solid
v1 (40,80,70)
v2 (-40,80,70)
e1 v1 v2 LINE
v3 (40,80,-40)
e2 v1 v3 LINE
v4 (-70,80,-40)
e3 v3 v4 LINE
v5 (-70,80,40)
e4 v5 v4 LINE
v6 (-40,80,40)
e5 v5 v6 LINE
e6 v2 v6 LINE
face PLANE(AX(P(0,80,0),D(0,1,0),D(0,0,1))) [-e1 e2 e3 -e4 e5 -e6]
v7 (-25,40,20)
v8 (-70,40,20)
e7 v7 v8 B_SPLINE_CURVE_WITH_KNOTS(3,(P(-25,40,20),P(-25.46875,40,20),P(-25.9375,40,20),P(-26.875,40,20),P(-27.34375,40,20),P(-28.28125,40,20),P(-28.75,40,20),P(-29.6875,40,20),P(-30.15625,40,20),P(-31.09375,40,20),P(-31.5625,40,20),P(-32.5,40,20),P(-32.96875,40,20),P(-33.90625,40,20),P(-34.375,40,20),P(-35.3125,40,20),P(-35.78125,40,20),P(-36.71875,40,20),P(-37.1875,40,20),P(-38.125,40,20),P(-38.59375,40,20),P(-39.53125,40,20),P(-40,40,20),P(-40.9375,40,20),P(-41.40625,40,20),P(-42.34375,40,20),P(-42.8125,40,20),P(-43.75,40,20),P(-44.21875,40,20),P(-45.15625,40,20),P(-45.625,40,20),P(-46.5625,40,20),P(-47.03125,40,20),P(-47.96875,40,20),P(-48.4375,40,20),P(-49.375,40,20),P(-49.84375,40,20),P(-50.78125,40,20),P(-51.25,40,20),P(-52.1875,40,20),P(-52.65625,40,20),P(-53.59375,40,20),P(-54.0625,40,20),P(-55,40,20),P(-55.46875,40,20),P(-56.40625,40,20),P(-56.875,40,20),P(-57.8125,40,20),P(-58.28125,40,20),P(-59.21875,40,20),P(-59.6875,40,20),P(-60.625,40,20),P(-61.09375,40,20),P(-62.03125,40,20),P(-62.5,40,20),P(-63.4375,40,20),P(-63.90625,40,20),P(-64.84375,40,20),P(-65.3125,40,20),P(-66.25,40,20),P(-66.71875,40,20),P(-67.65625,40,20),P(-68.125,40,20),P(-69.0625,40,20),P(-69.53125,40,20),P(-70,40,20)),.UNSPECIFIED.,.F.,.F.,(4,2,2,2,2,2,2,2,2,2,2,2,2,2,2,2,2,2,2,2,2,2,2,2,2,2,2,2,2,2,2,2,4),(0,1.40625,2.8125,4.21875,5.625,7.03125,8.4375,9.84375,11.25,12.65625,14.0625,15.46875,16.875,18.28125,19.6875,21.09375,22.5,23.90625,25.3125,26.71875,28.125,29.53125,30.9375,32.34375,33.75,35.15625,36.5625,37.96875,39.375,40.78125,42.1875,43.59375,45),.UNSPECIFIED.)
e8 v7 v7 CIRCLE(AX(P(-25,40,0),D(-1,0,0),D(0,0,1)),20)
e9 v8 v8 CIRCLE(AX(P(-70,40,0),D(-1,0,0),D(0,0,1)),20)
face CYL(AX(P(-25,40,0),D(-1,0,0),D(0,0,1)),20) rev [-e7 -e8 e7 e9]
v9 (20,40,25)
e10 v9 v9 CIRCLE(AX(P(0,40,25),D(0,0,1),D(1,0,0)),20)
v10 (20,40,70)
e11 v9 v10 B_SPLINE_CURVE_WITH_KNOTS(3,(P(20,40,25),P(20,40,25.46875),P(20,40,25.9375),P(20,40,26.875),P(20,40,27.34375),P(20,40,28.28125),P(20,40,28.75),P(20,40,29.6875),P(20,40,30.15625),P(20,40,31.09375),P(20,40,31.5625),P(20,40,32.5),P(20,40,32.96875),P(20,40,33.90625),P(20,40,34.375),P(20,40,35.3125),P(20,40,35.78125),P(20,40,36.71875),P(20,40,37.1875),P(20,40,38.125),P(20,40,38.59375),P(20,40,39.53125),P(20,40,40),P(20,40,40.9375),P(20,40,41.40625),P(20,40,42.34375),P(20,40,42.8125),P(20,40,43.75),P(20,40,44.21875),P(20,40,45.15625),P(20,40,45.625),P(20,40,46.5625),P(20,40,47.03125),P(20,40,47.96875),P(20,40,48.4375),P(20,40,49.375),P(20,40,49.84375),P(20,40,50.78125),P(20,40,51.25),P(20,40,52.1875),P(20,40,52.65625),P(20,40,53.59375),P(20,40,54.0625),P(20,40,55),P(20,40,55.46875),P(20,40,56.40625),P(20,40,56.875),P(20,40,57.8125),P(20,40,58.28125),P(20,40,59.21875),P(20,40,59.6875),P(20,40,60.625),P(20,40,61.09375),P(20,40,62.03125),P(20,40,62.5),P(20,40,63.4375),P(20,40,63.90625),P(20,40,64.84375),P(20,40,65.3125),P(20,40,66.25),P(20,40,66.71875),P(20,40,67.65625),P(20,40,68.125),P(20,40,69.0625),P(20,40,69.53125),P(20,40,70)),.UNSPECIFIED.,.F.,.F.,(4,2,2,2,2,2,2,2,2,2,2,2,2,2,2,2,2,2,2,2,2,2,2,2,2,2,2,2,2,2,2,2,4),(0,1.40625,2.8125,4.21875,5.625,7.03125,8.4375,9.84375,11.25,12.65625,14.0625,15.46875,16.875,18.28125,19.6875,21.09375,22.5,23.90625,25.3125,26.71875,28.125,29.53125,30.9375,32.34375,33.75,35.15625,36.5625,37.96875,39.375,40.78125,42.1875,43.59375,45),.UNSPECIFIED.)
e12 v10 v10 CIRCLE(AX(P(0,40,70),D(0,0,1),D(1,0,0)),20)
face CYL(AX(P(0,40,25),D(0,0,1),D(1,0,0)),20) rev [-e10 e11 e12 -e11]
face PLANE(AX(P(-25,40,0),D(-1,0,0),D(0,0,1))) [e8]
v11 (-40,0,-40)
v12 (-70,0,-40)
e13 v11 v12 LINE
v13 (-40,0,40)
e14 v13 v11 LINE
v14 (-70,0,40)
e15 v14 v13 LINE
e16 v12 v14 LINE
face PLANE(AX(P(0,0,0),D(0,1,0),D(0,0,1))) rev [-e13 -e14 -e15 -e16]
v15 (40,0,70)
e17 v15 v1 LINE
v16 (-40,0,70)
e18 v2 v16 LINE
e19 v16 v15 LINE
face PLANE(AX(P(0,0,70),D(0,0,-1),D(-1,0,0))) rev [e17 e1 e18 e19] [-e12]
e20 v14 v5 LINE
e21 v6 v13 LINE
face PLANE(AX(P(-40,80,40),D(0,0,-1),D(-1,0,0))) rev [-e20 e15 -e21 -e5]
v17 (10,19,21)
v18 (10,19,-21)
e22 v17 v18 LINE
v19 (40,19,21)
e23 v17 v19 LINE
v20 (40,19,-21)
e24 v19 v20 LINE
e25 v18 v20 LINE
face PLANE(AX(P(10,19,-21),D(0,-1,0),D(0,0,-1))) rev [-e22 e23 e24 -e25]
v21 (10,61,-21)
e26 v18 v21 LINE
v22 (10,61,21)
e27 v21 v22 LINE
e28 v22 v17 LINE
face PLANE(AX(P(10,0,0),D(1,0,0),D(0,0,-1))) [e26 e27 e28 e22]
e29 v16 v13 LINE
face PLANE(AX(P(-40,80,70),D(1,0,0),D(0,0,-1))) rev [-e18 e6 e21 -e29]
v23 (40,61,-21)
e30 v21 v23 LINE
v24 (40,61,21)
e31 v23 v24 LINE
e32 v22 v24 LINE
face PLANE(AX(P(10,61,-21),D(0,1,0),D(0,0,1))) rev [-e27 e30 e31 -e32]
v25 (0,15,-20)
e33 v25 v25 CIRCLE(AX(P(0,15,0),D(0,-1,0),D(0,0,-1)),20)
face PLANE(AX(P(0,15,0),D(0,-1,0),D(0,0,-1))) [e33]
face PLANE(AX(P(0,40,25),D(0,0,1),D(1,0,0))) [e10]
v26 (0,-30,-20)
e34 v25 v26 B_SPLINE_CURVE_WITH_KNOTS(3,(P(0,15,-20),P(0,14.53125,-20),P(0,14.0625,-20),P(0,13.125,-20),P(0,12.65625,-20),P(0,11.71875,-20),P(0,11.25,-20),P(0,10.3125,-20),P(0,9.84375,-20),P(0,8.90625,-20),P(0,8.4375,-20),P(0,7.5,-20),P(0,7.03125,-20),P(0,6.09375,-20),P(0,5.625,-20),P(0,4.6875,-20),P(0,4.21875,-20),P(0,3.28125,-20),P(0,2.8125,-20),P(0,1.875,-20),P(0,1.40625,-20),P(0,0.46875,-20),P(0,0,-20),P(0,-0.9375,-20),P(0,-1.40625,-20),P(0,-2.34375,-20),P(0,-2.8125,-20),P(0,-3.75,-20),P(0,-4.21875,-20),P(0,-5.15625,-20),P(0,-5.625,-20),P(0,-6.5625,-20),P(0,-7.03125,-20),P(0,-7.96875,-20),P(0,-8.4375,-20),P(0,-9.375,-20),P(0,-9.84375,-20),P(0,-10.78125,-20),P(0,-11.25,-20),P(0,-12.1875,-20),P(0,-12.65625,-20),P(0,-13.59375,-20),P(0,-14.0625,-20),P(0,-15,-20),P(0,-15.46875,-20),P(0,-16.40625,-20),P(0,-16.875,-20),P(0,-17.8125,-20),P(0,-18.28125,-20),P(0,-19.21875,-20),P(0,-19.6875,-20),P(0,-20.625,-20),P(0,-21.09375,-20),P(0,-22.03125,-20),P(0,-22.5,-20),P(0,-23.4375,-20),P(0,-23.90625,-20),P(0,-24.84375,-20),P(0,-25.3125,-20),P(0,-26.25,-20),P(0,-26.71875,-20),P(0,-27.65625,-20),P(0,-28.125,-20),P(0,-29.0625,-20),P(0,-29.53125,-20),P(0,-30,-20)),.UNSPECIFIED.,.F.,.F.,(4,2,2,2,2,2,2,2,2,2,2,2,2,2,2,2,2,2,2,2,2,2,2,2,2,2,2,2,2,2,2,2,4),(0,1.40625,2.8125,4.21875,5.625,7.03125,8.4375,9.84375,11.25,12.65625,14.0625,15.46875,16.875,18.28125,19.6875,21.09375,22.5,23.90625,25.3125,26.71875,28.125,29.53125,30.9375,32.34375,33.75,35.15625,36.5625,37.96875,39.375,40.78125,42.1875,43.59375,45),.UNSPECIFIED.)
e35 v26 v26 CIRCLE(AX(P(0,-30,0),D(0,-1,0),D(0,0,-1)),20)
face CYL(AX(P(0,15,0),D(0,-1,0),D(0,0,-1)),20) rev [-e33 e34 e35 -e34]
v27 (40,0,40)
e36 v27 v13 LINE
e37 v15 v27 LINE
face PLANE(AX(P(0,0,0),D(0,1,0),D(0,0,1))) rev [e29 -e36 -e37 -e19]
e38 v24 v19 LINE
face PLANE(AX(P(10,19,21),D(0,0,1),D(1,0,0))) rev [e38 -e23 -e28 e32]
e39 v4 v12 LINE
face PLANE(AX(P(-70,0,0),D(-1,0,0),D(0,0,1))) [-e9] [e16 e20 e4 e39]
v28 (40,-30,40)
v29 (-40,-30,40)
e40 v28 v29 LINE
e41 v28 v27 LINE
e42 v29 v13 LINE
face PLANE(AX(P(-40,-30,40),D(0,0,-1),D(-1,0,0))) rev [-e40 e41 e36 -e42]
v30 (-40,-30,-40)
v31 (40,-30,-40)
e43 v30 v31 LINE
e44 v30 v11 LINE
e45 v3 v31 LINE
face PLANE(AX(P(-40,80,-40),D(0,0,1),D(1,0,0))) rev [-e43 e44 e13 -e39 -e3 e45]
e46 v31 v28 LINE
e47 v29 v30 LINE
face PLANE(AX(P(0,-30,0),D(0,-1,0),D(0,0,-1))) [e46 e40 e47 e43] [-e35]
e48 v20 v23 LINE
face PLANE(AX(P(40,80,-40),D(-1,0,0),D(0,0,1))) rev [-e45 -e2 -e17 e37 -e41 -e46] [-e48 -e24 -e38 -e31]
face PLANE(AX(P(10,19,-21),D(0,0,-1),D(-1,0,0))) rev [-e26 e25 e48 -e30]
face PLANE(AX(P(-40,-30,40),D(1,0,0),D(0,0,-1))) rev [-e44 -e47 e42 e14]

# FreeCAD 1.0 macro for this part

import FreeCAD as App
import Part
import Sketcher
from FreeCAD import Vector

doc = App.newDocument("Part")
body = doc.addObject("PartDesign::Body", "Body")

sketch1 = body.newObject("Sketcher::SketchObject", "Sketch")
sketch1.AttachmentSupport = (doc.getObject("XZ_Plane"), [""])
sketch1.MapMode = "FlatFace"
sketch1.addGeometry(Part.LineSegment(Vector(-40, -40, 0), Vector(-40, 40, 0)), False)
sketch1.addGeometry(Part.LineSegment(Vector(-40, 40, 0), Vector(40, 40, 0)), False)
sketch1.addGeometry(Part.LineSegment(Vector(40, 40, 0), Vector(40, -40, 0)), False)
sketch1.addGeometry(Part.LineSegment(Vector(40, -40, 0), Vector(-40, -40, 0)), False)
sketch1.addConstraint(Sketcher.Constraint("Coincident", 0, 2, 1, 1))
sketch1.addConstraint(Sketcher.Constraint("Coincident", 1, 2, 2, 1))
sketch1.addConstraint(Sketcher.Constraint("Coincident", 2, 2, 3, 1))
sketch1.addConstraint(Sketcher.Constraint("Coincident", 3, 2, 0, 1))
sketch1.addConstraint(Sketcher.Constraint("Vertical", 0))
sketch1.addConstraint(Sketcher.Constraint("Horizontal", 1))
sketch1.addConstraint(Sketcher.Constraint("Vertical", 2))
sketch1.addConstraint(Sketcher.Constraint("Horizontal", 3))
sketch1.addConstraint(Sketcher.Constraint("Symmetric", 0, 2, 2, 2, -1, 1))
sketch1.addConstraint(Sketcher.Constraint("Equal", 3, 0))
sketch1.addConstraint(Sketcher.Constraint("DistanceX", 1, 1, 1, 2, 80.0))
pad1 = body.newObject("PartDesign::Pad", "Pad")
pad1.Profile = sketch1
pad1.Length = 80
pad1.Reversed = True

sketch2 = body.newObject("Sketcher::SketchObject", "Sketch001")
sketch2.AttachmentSupport = (doc.getObject("YZ_Plane"), [""])
sketch2.MapMode = "FlatFace"
sketch2.AttachmentOffset = App.Placement(Vector(0, 0, -40), App.Rotation())
sketch2.addGeometry(Part.LineSegment(Vector(80, -40, 0), Vector(0, -40, 0)), False)
sketch2.addGeometry(Part.LineSegment(Vector(0, -40, 0), Vector(0, 40, 0)), False)
sketch2.addGeometry(Part.LineSegment(Vector(0, 40, 0), Vector(80, 40, 0)), False)
sketch2.addGeometry(Part.LineSegment(Vector(80, 40, 0), Vector(80, -40, 0)), False)
sketch2.addConstraint(Sketcher.Constraint("Coincident", 0, 2, 1, 1))
sketch2.addConstraint(Sketcher.Constraint("Coincident", 1, 2, 2, 1))
sketch2.addConstraint(Sketcher.Constraint("Coincident", 2, 2, 3, 1))
sketch2.addConstraint(Sketcher.Constraint("Coincident", 3, 2, 0, 1))
sketch2.addConstraint(Sketcher.Constraint("Horizontal", 0))
sketch2.addConstraint(Sketcher.Constraint("Vertical", 1))
sketch2.addConstraint(Sketcher.Constraint("Horizontal", 2))
sketch2.addConstraint(Sketcher.Constraint("Vertical", 3))
sketch2.addConstraint(Sketcher.Constraint("Symmetric", 0, 2, 1, 2, -1, 1))
sketch2.addConstraint(Sketcher.Constraint("Equal", 2, 1))
sketch2.addConstraint(Sketcher.Constraint("DistanceX", 0, 2, 0, 1, 80.0))
pad2 = body.newObject("PartDesign::Pad", "Pad001")
pad2.Profile = sketch2
pad2.Length = 30
pad2.Reversed = True

sketch3 = body.newObject("Sketcher::SketchObject", "Sketch002")
sketch3.AttachmentSupport = (doc.getObject("XY_Plane"), [""])
sketch3.MapMode = "FlatFace"
sketch3.AttachmentOffset = App.Placement(Vector(0, 0, 40), App.Rotation())
sketch3.addGeometry(Part.LineSegment(Vector(-40, 80, 0), Vector(-40, 0, 0)), False)
sketch3.addGeometry(Part.LineSegment(Vector(-40, 0, 0), Vector(40, 0, 0)), False)
sketch3.addGeometry(Part.LineSegment(Vector(40, 0, 0), Vector(40, 80, 0)), False)
sketch3.addGeometry(Part.LineSegment(Vector(40, 80, 0), Vector(-40, 80, 0)), False)
sketch3.addConstraint(Sketcher.Constraint("Coincident", 0, 2, 1, 1))
sketch3.addConstraint(Sketcher.Constraint("Coincident", 1, 2, 2, 1))
sketch3.addConstraint(Sketcher.Constraint("Coincident", 2, 2, 3, 1))
sketch3.addConstraint(Sketcher.Constraint("Coincident", 3, 2, 0, 1))
sketch3.addConstraint(Sketcher.Constraint("Vertical", 0))
sketch3.addConstraint(Sketcher.Constraint("Horizontal", 1))
sketch3.addConstraint(Sketcher.Constraint("Vertical", 2))
sketch3.addConstraint(Sketcher.Constraint("Horizontal", 3))
sketch3.addConstraint(Sketcher.Constraint("Symmetric", 0, 2, 1, 2, -1, 1))
sketch3.addConstraint(Sketcher.Constraint("Equal", 3, 0))
sketch3.addConstraint(Sketcher.Constraint("DistanceX", 1, 1, 1, 2, 80.0))
pad3 = body.newObject("PartDesign::Pad", "Pad002")
pad3.Profile = sketch3
pad3.Length = 30

sketch4 = body.newObject("Sketcher::SketchObject", "Sketch003")
sketch4.AttachmentSupport = (doc.getObject("XZ_Plane"), [""])
sketch4.MapMode = "FlatFace"
sketch4.addGeometry(Part.LineSegment(Vector(-40, 40, 0), Vector(-40, -40, 0)), False)
sketch4.addGeometry(Part.LineSegment(Vector(-40, -40, 0), Vector(40, -40, 0)), False)
sketch4.addGeometry(Part.LineSegment(Vector(40, -40, 0), Vector(40, 40, 0)), False)
sketch4.addGeometry(Part.LineSegment(Vector(40, 40, 0), Vector(-40, 40, 0)), False)
sketch4.addConstraint(Sketcher.Constraint("Coincident", 0, 2, 1, 1))
sketch4.addConstraint(Sketcher.Constraint("Coincident", 1, 2, 2, 1))
sketch4.addConstraint(Sketcher.Constraint("Coincident", 2, 2, 3, 1))
sketch4.addConstraint(Sketcher.Constraint("Coincident", 3, 2, 0, 1))
sketch4.addConstraint(Sketcher.Constraint("Vertical", 0))
sketch4.addConstraint(Sketcher.Constraint("Horizontal", 1))
sketch4.addConstraint(Sketcher.Constraint("Vertical", 2))
sketch4.addConstraint(Sketcher.Constraint("Horizontal", 3))
sketch4.addConstraint(Sketcher.Constraint("Symmetric", 0, 2, 2, 2, -1, 1))
sketch4.addConstraint(Sketcher.Constraint("Equal", 3, 0))
sketch4.addConstraint(Sketcher.Constraint("DistanceX", 1, 1, 1, 2, 80.0))
pad4 = body.newObject("PartDesign::Pad", "Pad003")
pad4.Profile = sketch4
pad4.Length = 30

sketch5 = body.newObject("Sketcher::SketchObject", "Sketch004")
sketch5.AttachmentSupport = (doc.getObject("YZ_Plane"), [""])
sketch5.MapMode = "FlatFace"
sketch5.AttachmentOffset = App.Placement(Vector(0, 0, -70), App.Rotation())
sketch5.addGeometry(Part.Circle(Vector(40, 0, 0), Vector(0, 0, 1), 20), False)
sketch5.addConstraint(Sketcher.Constraint("PointOnObject", 0, 3, -1))
sketch5.addConstraint(Sketcher.Constraint("Diameter", 0, 40.0))
sketch5.addConstraint(Sketcher.Constraint("DistanceX", -1, 1, 0, 3, 40.0))
pocket1 = body.newObject("PartDesign::Pocket", "Pocket")
pocket1.Profile = sketch5
pocket1.Length = 45
pocket1.Reversed = True

sketch6 = body.newObject("Sketcher::SketchObject", "Sketch005")
sketch6.AttachmentSupport = (doc.getObject("XY_Plane"), [""])
sketch6.MapMode = "FlatFace"
sketch6.AttachmentOffset = App.Placement(Vector(0, 0, 70), App.Rotation())
sketch6.addGeometry(Part.Circle(Vector(0, 40, 0), Vector(0, 0, 1), 20), False)
sketch6.addConstraint(Sketcher.Constraint("PointOnObject", 0, 3, -2))
sketch6.addConstraint(Sketcher.Constraint("Diameter", 0, 40.0))
sketch6.addConstraint(Sketcher.Constraint("DistanceY", -1, 1, 0, 3, 40.0))
pocket2 = body.newObject("PartDesign::Pocket", "Pocket001")
pocket2.Profile = sketch6
pocket2.Length = 45

sketch7 = body.newObject("Sketcher::SketchObject", "Sketch006")
sketch7.AttachmentSupport = (doc.getObject("XZ_Plane"), [""])
sketch7.MapMode = "FlatFace"
sketch7.AttachmentOffset = App.Placement(Vector(0, 0, 30), App.Rotation())
sketch7.addGeometry(Part.Circle(Vector(0, 0, 0), Vector(0, 0, 1), 20), False)
sketch7.addConstraint(Sketcher.Constraint("Coincident", 0, 3, -1, 1))
sketch7.addConstraint(Sketcher.Constraint("Diameter", 0, 40.0))
pocket3 = body.newObject("PartDesign::Pocket", "Pocket002")
pocket3.Profile = sketch7
pocket3.Length = 45

sketch8 = body.newObject("Sketcher::SketchObject", "Sketch007")
sketch8.AttachmentSupport = (doc.getObject("YZ_Plane"), [""])
sketch8.MapMode = "FlatFace"
sketch8.AttachmentOffset = App.Placement(Vector(0, 0, 40), App.Rotation())
sketch8.addGeometry(Part.LineSegment(Vector(61, 21, 0), Vector(19, 21, 0)), False)
sketch8.addGeometry(Part.LineSegment(Vector(19, 21, 0), Vector(19, -21, 0)), False)
sketch8.addGeometry(Part.LineSegment(Vector(19, -21, 0), Vector(61, -21, 0)), False)
sketch8.addGeometry(Part.LineSegment(Vector(61, -21, 0), Vector(61, 21, 0)), False)
sketch8.addConstraint(Sketcher.Constraint("Coincident", 0, 2, 1, 1))
sketch8.addConstraint(Sketcher.Constraint("Coincident", 1, 2, 2, 1))
sketch8.addConstraint(Sketcher.Constraint("Coincident", 2, 2, 3, 1))
sketch8.addConstraint(Sketcher.Constraint("Coincident", 3, 2, 0, 1))
sketch8.addConstraint(Sketcher.Constraint("Horizontal", 0))
sketch8.addConstraint(Sketcher.Constraint("Vertical", 1))
sketch8.addConstraint(Sketcher.Constraint("Horizontal", 2))
sketch8.addConstraint(Sketcher.Constraint("Vertical", 3))
sketch8.addConstraint(Sketcher.Constraint("Equal", 2, 1))
sketch8.addConstraint(Sketcher.Constraint("DistanceX", 0, 2, 0, 1, 42.0))
sketch8.addConstraint(Sketcher.Constraint("DistanceX", -1, 1, 0, 2, 19.0))
sketch8.addConstraint(Sketcher.Constraint("DistanceY", -1, 1, 0, 2, 21.0))
pocket4 = body.newObject("PartDesign::Pocket", "Pocket003")
pocket4.Profile = sketch8
pocket4.Length = 30

doc.recompute()
